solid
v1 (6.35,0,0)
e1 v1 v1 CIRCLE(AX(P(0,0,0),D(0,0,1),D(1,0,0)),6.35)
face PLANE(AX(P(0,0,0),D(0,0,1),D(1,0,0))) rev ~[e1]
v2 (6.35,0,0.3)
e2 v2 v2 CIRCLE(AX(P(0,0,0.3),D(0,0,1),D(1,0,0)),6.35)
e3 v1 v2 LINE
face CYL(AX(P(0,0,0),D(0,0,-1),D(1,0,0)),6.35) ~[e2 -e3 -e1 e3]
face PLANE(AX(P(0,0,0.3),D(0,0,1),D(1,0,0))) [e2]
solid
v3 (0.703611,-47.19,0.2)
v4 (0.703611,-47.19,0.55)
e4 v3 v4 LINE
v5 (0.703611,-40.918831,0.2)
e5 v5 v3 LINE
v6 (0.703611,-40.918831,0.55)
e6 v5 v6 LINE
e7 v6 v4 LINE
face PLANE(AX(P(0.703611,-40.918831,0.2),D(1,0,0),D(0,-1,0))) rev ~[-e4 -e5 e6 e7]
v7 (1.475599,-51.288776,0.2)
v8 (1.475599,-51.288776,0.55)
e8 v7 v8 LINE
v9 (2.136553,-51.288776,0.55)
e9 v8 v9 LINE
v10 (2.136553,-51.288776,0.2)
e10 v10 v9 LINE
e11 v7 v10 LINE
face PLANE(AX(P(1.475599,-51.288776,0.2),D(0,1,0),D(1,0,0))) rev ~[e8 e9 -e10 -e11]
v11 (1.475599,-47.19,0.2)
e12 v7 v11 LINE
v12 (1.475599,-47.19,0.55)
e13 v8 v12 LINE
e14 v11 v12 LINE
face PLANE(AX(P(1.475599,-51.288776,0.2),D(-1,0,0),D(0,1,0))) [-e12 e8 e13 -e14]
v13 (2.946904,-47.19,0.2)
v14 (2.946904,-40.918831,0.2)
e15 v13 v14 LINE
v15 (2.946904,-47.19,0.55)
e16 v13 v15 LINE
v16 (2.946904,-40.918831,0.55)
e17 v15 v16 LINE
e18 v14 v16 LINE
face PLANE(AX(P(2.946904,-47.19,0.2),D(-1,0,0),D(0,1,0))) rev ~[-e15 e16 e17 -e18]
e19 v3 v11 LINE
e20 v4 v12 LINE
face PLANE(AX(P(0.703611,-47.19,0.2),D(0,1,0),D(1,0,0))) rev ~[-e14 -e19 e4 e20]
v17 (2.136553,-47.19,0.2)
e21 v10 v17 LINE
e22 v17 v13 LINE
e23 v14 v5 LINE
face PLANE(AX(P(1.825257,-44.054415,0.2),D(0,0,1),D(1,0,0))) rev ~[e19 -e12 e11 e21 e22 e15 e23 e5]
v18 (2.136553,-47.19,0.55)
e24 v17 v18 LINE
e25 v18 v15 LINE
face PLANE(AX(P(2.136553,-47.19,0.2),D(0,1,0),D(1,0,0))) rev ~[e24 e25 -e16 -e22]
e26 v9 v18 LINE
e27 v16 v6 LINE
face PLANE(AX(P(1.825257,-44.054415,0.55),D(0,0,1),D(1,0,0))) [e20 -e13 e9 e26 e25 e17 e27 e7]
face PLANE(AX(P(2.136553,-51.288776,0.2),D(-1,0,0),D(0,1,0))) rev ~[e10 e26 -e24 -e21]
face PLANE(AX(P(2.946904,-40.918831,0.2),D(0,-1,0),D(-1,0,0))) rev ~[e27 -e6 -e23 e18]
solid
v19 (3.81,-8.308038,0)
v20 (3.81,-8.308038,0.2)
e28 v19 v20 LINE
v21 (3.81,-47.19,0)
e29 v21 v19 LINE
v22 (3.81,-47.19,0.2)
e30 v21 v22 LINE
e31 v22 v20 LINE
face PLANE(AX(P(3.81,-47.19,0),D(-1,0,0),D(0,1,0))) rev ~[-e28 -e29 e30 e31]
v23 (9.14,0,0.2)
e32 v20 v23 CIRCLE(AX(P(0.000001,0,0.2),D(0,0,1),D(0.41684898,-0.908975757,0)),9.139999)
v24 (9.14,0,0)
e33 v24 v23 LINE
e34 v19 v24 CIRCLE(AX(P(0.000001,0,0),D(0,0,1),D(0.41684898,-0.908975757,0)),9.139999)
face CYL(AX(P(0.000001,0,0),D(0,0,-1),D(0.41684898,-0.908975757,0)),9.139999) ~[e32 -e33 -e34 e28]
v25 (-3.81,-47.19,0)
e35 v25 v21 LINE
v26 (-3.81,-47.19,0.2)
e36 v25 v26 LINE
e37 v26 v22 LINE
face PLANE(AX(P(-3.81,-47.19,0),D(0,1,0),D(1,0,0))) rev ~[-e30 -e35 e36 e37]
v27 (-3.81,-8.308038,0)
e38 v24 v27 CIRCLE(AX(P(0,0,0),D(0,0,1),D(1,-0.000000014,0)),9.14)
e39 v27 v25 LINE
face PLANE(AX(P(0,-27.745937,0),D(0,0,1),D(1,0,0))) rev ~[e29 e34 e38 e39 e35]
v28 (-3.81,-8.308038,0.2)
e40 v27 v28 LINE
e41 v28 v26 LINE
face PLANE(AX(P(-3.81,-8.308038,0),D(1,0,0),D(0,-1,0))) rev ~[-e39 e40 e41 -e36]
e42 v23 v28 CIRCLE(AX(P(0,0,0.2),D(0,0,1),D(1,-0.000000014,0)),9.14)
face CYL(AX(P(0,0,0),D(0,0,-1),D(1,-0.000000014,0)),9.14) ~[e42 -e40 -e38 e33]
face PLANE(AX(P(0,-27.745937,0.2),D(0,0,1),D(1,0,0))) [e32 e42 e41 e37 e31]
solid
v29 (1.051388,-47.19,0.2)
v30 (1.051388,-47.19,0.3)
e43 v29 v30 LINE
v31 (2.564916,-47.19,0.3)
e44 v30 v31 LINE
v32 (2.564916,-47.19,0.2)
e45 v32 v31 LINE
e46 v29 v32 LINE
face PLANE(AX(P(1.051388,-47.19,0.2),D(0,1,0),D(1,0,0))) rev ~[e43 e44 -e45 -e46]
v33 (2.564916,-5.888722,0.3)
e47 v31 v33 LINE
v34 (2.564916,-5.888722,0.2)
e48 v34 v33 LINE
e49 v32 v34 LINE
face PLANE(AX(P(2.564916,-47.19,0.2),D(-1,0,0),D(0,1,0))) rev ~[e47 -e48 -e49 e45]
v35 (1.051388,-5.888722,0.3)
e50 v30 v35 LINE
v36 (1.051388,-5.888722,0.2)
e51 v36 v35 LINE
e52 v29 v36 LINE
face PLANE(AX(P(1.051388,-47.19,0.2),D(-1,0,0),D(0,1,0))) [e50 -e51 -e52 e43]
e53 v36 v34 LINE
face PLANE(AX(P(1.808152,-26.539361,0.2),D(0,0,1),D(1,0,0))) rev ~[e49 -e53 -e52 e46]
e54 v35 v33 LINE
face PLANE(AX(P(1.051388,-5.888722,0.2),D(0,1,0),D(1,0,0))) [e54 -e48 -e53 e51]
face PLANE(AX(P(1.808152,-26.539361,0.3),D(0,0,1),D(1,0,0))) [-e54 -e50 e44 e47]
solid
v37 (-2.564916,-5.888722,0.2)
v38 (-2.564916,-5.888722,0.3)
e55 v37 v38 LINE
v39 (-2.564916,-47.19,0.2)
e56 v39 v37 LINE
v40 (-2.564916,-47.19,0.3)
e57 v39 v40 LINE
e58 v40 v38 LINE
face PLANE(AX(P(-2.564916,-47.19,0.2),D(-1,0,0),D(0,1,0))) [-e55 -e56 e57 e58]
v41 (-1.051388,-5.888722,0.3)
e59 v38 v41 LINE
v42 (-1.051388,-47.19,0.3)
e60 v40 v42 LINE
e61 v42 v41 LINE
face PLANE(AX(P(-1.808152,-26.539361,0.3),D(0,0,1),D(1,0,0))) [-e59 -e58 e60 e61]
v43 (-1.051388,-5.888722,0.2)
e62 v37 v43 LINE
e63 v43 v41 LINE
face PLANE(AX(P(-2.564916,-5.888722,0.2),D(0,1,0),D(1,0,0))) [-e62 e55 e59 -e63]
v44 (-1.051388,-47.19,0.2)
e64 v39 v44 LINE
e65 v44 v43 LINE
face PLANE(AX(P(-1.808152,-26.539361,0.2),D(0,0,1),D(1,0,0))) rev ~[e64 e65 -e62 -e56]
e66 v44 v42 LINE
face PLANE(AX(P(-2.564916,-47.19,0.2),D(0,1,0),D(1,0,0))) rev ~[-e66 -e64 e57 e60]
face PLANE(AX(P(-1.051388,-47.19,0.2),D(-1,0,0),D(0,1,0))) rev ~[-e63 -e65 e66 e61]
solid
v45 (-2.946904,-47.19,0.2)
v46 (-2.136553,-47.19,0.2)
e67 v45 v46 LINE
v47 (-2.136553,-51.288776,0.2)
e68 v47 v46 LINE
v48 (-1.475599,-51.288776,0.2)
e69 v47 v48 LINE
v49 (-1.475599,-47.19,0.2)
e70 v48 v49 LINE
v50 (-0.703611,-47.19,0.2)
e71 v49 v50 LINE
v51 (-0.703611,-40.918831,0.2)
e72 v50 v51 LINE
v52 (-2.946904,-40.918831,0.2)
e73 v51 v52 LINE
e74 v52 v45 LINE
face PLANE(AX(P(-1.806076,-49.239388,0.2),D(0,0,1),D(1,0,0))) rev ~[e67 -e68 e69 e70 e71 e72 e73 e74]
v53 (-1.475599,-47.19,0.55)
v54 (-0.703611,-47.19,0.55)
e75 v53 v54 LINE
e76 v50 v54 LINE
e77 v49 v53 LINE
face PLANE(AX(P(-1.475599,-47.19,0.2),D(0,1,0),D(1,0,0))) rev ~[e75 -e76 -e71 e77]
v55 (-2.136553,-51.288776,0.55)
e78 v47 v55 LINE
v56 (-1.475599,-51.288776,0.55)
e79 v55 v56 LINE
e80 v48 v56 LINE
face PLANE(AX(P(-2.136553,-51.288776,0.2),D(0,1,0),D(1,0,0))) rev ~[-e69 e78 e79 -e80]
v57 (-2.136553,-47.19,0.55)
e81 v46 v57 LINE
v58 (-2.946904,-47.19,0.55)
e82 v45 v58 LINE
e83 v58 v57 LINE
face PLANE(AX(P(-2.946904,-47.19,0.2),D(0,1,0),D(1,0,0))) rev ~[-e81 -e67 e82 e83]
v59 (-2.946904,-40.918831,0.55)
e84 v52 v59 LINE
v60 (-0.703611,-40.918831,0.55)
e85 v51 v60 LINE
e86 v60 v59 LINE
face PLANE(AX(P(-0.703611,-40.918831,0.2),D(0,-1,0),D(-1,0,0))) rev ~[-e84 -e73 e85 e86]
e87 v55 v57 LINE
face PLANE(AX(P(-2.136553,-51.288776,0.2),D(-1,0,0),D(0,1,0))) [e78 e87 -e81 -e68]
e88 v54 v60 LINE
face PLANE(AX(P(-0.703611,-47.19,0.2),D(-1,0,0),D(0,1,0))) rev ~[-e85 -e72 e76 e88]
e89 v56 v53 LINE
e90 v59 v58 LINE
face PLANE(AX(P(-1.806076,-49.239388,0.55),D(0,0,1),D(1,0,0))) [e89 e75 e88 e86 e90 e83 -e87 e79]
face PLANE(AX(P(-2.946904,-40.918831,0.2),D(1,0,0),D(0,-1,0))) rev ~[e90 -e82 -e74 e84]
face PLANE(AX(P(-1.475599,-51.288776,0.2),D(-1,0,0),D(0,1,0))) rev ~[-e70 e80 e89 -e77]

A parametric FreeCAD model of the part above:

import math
import FreeCAD as App
import Part
import Sketcher
Q = App.Units.Quantity

doc = App.newDocument("Part")
body = doc.addObject("PartDesign::Body", "Body")

# Sketch on XY plane
sketch1 = doc.addObject("Sketcher::SketchObject", "Sketch")
body.addObject(sketch1)
sketch1.AttachmentSupport = (doc.XY_Plane, [""])
sketch1.MapMode = "FlatFace"
sketch1.addGeometry([
    Part.LineSegment(App.Vector(-4, -8, 0), App.Vector(-4, -47, 0)),  # 0
    Part.LineSegment(App.Vector(-4, -47, 0), App.Vector(4, -47, 0)),  # 1
    Part.LineSegment(App.Vector(4, -47, 0), App.Vector(4, -8, 0)),  # 2
    Part.ArcOfCircle(Part.Circle(App.Vector(0, 0, 0), App.Vector(0, 0, 1), 9), math.radians(-65), math.radians(0)),  # 3
    Part.ArcOfCircle(Part.Circle(App.Vector(0, 0, 0), App.Vector(0, 0, 1), 9), math.radians(0), math.radians(245)),  # 4
], False)
sketch1.addConstraint([
    Sketcher.Constraint("Coincident", 0, 2, 1, 1),
    Sketcher.Constraint("Coincident", 1, 2, 2, 1),
    Sketcher.Constraint("Coincident", 2, 2, 3, 1),
    Sketcher.Constraint("Tangent", 3, 2, 4, 1),
    Sketcher.Constraint("Coincident", 4, 2, 0, 1),
    Sketcher.Constraint("Vertical", 0),
    Sketcher.Constraint("Horizontal", 1),
    Sketcher.Constraint("Vertical", 2),
    Sketcher.Constraint("Coincident", 3, 3, -1, 1),
    Sketcher.Constraint("Equal", 3, 4),
    Sketcher.Constraint("PointOnObject", 3, 2, -1),
    Sketcher.Constraint("Horizontal", 2, 2, 4, 2),
    Sketcher.Constraint("Radius", 3, Q("9.139999 mm")),
    Sketcher.Constraint("DistanceX", 1, 1, 1, 2, Q("7.62 mm")),
    Sketcher.Constraint("DistanceY", 0, 2, -1, 1, Q("47.19 mm")),
])
pad1 = doc.addObject("PartDesign::Pad", "Pad")
body.addObject(pad1)
pad1.Profile = sketch1
pad1.Length = 0.2
body2 = doc.addObject("PartDesign::Body", "Body001")

# Sketch on XY plane
sketch2 = doc.addObject("Sketcher::SketchObject", "Sketch001")
body2.addObject(sketch2)
sketch2.AttachmentSupport = (doc.getObject("XY_Plane001"), [""])
sketch2.MapMode = "FlatFace"
sketch2.addGeometry(Part.Circle(App.Vector(0, 0, 0), App.Vector(0, 0, 1), 6), False)
sketch2.addConstraint([
    Sketcher.Constraint("Coincident", 0, 3, -1, 1),
    Sketcher.Constraint("Diameter", 0, Q("12.7 mm")),
])
pad2 = doc.addObject("PartDesign::Pad", "Pad001")
body2.addObject(pad2)
pad2.Profile = sketch2
pad2.Length = 0.3
body3 = doc.addObject("PartDesign::Body", "Body002")
body3.AllowCompound = True

# Sketch on XY plane
sketch3 = doc.addObject("Sketcher::SketchObject", "Sketch002")
body3.addObject(sketch3)
sketch3.AttachmentSupport = (doc.getObject("XY_Plane002"), [""])
sketch3.MapMode = "FlatFace"
sketch3.AttachmentOffset = App.Placement(App.Vector(0, 0, 0.2), App.Rotation())
sketch3.addGeometry([
    Part.LineSegment(App.Vector(-2.6, -5.9, 0), App.Vector(-2.6, -47.2, 0)),  # 0
    Part.LineSegment(App.Vector(-2.6, -47.2, 0), App.Vector(-1.1, -47.2, 0)),  # 1
    Part.LineSegment(App.Vector(-1.1, -47.2, 0), App.Vector(-1.1, -5.9, 0)),  # 2
    Part.LineSegment(App.Vector(-1.1, -5.9, 0), App.Vector(-2.6, -5.9, 0)),  # 3
    Part.LineSegment(App.Vector(1.1, -5.9, 0), App.Vector(1.1, -47.2, 0)),  # 4
    Part.LineSegment(App.Vector(1.1, -47.2, 0), App.Vector(2.6, -47.2, 0)),  # 5
    Part.LineSegment(App.Vector(2.6, -47.2, 0), App.Vector(2.6, -5.9, 0)),  # 6
    Part.LineSegment(App.Vector(2.6, -5.9, 0), App.Vector(1.1, -5.9, 0)),  # 7
], False)
sketch3.addConstraint([
    Sketcher.Constraint("Coincident", 0, 2, 1, 1),
    Sketcher.Constraint("Coincident", 1, 2, 2, 1),
    Sketcher.Constraint("Coincident", 2, 2, 3, 1),
    Sketcher.Constraint("Coincident", 3, 2, 0, 1),
    Sketcher.Constraint("Coincident", 4, 2, 5, 1),
    Sketcher.Constraint("Coincident", 5, 2, 6, 1),
    Sketcher.Constraint("Coincident", 6, 2, 7, 1),
    Sketcher.Constraint("Coincident", 7, 2, 4, 1),
    Sketcher.Constraint("Vertical", 0),
    Sketcher.Constraint("Horizontal", 1),
    Sketcher.Constraint("Vertical", 2),
    Sketcher.Constraint("Horizontal", 3),
    Sketcher.Constraint("Vertical", 4),
    Sketcher.Constraint("Horizontal", 5),
    Sketcher.Constraint("Vertical", 6),
    Sketcher.Constraint("Horizontal", 7),
    Sketcher.Constraint("Symmetric", 1, 2, 4, 2, -2),
    Sketcher.Constraint("Symmetric", 3, 2, 6, 2, -2),
    Sketcher.Constraint("DistanceY", 0, 2, -1, 1, Q("47.19 mm")),
    Sketcher.Constraint("DistanceX", 1, 1, 1, 2, Q("1.513528 mm")),
    Sketcher.Constraint("DistanceY", 0, 2, 0, 1, Q("41.301278 mm")),
    Sketcher.Constraint("DistanceX", 0, 2, -1, 1, Q("2.564916 mm")),
])
pad3 = doc.addObject("PartDesign::Pad", "Pad002")
body3.addObject(pad3)
pad3.Profile = sketch3
pad3.Length = 0.1
body4 = doc.addObject("PartDesign::Body", "Body003")
body4.AllowCompound = True

# Sketch on XY plane
sketch4 = doc.addObject("Sketcher::SketchObject", "Sketch003")
body4.addObject(sketch4)
sketch4.AttachmentSupport = (doc.getObject("XY_Plane003"), [""])
sketch4.MapMode = "FlatFace"
sketch4.AttachmentOffset = App.Placement(App.Vector(0, 0, 0.2), App.Rotation())
sketch4.addGeometry([
    Part.LineSegment(App.Vector(-2.1, -47.2, 0), App.Vector(-2.1, -51.3, 0)),  # 0
    Part.LineSegment(App.Vector(-2.1, -51.3, 0), App.Vector(-1.5, -51.3, 0)),  # 1
    Part.LineSegment(App.Vector(-1.5, -51.3, 0), App.Vector(-1.5, -47.2, 0)),  # 2
    Part.LineSegment(App.Vector(-1.5, -47.2, 0), App.Vector(-0.7, -47.2, 0)),  # 3
    Part.LineSegment(App.Vector(-0.7, -47.2, 0), App.Vector(-0.7, -40.9, 0)),  # 4
    Part.LineSegment(App.Vector(-0.7, -40.9, 0), App.Vector(-2.9, -40.9, 0)),  # 5
    Part.LineSegment(App.Vector(-2.9, -40.9, 0), App.Vector(-2.9, -47.2, 0)),  # 6
    Part.LineSegment(App.Vector(-2.9, -47.2, 0), App.Vector(-2.1, -47.2, 0)),  # 7
    Part.LineSegment(App.Vector(0.7, -40.9, 0), App.Vector(0.7, -47.2, 0)),  # 8
    Part.LineSegment(App.Vector(0.7, -47.2, 0), App.Vector(1.5, -47.2, 0)),  # 9
    Part.LineSegment(App.Vector(1.5, -47.2, 0), App.Vector(1.5, -51.3, 0)),  # 10
    Part.LineSegment(App.Vector(1.5, -51.3, 0), App.Vector(2.1, -51.3, 0)),  # 11
    Part.LineSegment(App.Vector(2.1, -51.3, 0), App.Vector(2.1, -47.2, 0)),  # 12
    Part.LineSegment(App.Vector(2.1, -47.2, 0), App.Vector(2.9, -47.2, 0)),  # 13
    Part.LineSegment(App.Vector(2.9, -47.2, 0), App.Vector(2.9, -40.9, 0)),  # 14
    Part.LineSegment(App.Vector(2.9, -40.9, 0), App.Vector(0.7, -40.9, 0)),  # 15
], False)
sketch4.addConstraint([
    Sketcher.Constraint("Coincident", 0, 2, 1, 1),
    Sketcher.Constraint("Coincident", 1, 2, 2, 1),
    Sketcher.Constraint("Coincident", 2, 2, 3, 1),
    Sketcher.Constraint("Coincident", 3, 2, 4, 1),
    Sketcher.Constraint("Coincident", 4, 2, 5, 1),
    Sketcher.Constraint("Coincident", 5, 2, 6, 1),
    Sketcher.Constraint("Coincident", 6, 2, 7, 1),
    Sketcher.Constraint("Coincident", 7, 2, 0, 1),
    Sketcher.Constraint("Coincident", 8, 2, 9, 1),
    Sketcher.Constraint("Coincident", 9, 2, 10, 1),
    Sketcher.Constraint("Coincident", 10, 2, 11, 1),
    Sketcher.Constraint("Coincident", 11, 2, 12, 1),
    Sketcher.Constraint("Coincident", 12, 2, 13, 1),
    Sketcher.Constraint("Coincident", 13, 2, 14, 1),
    Sketcher.Constraint("Coincident", 14, 2, 15, 1),
    Sketcher.Constraint("Coincident", 15, 2, 8, 1),
    Sketcher.Constraint("Vertical", 0),
    Sketcher.Constraint("Horizontal", 1),
    Sketcher.Constraint("Vertical", 2),
    Sketcher.Constraint("Horizontal", 3),
    Sketcher.Constraint("Vertical", 4),
    Sketcher.Constraint("Horizontal", 5),
    Sketcher.Constraint("Vertical", 6),
    Sketcher.Constraint("Horizontal", 7),
    Sketcher.Constraint("Vertical", 8),
    Sketcher.Constraint("Horizontal", 9),
    Sketcher.Constraint("Vertical", 10),
    Sketcher.Constraint("Horizontal", 11),
    Sketcher.Constraint("Vertical", 12),
    Sketcher.Constraint("Horizontal", 13),
    Sketcher.Constraint("Vertical", 14),
    Sketcher.Constraint("Horizontal", 15),
    Sketcher.Constraint("Symmetric", 3, 2, 8, 2, -2),
    Sketcher.Constraint("Symmetric", 1, 2, 10, 2, -2),
    Sketcher.Constraint("Symmetric", 7, 2, 12, 2, -2),
    Sketcher.Constraint("Symmetric", 5, 2, 14, 2, -2),
    Sketcher.Constraint("Horizontal", 3, 2, 6, 2),
    Sketcher.Constraint("DistanceY", 2, 2, -1, 1, Q("47.19 mm")),
    Sketcher.Constraint("DistanceX", 3, 1, 3, 2, Q("0.771988 mm")),
    Sketcher.Constraint("DistanceX", 7, 1, 7, 2, Q("0.810351 mm")),
    Sketcher.Constraint("DistanceY", 4, 1, 4, 2, Q("6.271169 mm")),
    Sketcher.Constraint("DistanceX", 1, 2, -1, 1, Q("1.475599 mm")),
    Sketcher.Constraint("DistanceX", 1, 1, 1, 2, Q("0.660953 mm")),
    Sketcher.Constraint("DistanceY", 0, 2, 0, 1, Q("4.098776 mm")),
])
pad4 = doc.addObject("PartDesign::Pad", "Pad003")
body4.addObject(pad4)
pad4.Profile = sketch4
pad4.Length = 0.35

doc.recompute()
